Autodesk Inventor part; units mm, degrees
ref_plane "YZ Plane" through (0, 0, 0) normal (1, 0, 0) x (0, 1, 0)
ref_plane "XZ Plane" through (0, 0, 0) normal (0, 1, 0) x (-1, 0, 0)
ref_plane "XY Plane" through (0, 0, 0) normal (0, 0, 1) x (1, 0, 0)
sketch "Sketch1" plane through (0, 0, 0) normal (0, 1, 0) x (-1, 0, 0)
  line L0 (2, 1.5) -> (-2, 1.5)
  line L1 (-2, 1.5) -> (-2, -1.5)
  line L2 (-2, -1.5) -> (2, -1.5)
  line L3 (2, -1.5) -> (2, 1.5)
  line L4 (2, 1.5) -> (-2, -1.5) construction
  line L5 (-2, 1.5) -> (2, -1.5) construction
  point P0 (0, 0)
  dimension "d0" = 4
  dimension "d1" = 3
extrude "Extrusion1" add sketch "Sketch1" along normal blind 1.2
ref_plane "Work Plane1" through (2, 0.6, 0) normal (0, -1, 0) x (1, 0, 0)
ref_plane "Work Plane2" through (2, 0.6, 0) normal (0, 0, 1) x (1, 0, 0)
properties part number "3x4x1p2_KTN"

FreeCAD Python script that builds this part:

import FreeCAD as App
import Part
import Sketcher
from FreeCAD import Vector
Q = App.Units.Quantity

doc = App.newDocument("Part")
params = doc.addObject("Spreadsheet::Sheet", "Params")
for row, (alias, value) in enumerate([
    ("sketch1_width", "4 mm"),
    ("sketch1_height", "3 mm"),
    ("pad1_length", "1.2 mm"),
], start=1):
    params.set(f"A{row}", alias)
    params.set(f"B{row}", "=" + value)
    params.setAlias(f"B{row}", alias)

body = doc.addObject("PartDesign::Body", "Body")

sketch1 = body.newObject("Sketcher::SketchObject", "Sketch")
sketch1.AttachmentSupport = (doc.getObject("XZ_Plane"), [""])
sketch1.MapMode = "FlatFace"
sketch1.addGeometry([
    Part.LineSegment(Vector(-2, -1.5, 0), Vector(-2, 1.5, 0)),
    Part.LineSegment(Vector(-2, 1.5, 0), Vector(2, 1.5, 0)),
    Part.LineSegment(Vector(2, 1.5, 0), Vector(2, -1.5, 0)),
    Part.LineSegment(Vector(2, -1.5, 0), Vector(-2, -1.5, 0)),
], False)
sketch1.addConstraint([
    Sketcher.Constraint("Coincident", 0, 2, 1, 1),
    Sketcher.Constraint("Coincident", 1, 2, 2, 1),
    Sketcher.Constraint("Coincident", 2, 2, 3, 1),
    Sketcher.Constraint("Coincident", 3, 2, 0, 1),
    Sketcher.Constraint("Vertical", 0),
    Sketcher.Constraint("Horizontal", 1),
    Sketcher.Constraint("Vertical", 2),
    Sketcher.Constraint("Horizontal", 3),
    Sketcher.Constraint("Symmetric", 0, 2, 2, 2, -1, 1),
    Sketcher.Constraint("DistanceX", 1, 1, 1, 2, Q("4 mm")),
    Sketcher.Constraint("DistanceY", 0, 1, 0, 2, Q("3 mm")),
])
sketch1.setExpression("Constraints[9]", "Params.sketch1_width")
sketch1.setExpression("Constraints[10]", "Params.sketch1_height")
pad1 = body.newObject("PartDesign::Pad", "Pad")
pad1.Profile = sketch1
pad1.setExpression("Length", "Params.pad1_length")
pad1.Reversed = True

doc.recompute()
